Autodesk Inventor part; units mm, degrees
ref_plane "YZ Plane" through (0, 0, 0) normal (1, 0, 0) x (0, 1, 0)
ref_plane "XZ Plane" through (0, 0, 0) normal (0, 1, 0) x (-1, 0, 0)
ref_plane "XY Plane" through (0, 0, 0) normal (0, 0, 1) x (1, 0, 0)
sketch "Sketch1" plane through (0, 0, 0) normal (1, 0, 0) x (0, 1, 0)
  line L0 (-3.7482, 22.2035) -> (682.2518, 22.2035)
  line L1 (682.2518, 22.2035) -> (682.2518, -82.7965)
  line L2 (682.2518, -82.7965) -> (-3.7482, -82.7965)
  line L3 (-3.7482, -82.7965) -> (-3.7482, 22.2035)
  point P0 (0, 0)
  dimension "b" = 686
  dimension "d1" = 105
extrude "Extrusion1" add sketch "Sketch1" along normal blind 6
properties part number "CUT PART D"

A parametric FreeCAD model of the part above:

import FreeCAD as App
import Part
import Sketcher
from FreeCAD import Vector

doc = App.newDocument("Part")
params = doc.addObject("Spreadsheet::Sheet", "Params")
for row, (alias, value) in enumerate([
    ("sketch1_width", "686 mm"),
    ("sketch1_height", "105 mm"),
    ("pad1_length", "6 mm"),
], start=1):
    params.set(f"A{row}", alias)
    params.set(f"B{row}", "=" + value)
    params.setAlias(f"B{row}", alias)

body = doc.addObject("PartDesign::Body", "Body")

sketch1 = body.newObject("Sketcher::SketchObject", "Sketch")
sketch1.AttachmentSupport = (doc.getObject("YZ_Plane"), [""])
sketch1.MapMode = "FlatFace"
sketch1.addGeometry([
    Part.LineSegment(Vector(682, 22, 0), Vector(-4, 22, 0)),
    Part.LineSegment(Vector(-4, 22, 0), Vector(-4, -83, 0)),
    Part.LineSegment(Vector(-4, -83, 0), Vector(682, -83, 0)),
    Part.LineSegment(Vector(682, -83, 0), Vector(682, 22, 0)),
], False)
sketch1.addConstraint([
    Sketcher.Constraint("Coincident", 0, 2, 1, 1),
    Sketcher.Constraint("Coincident", 1, 2, 2, 1),
    Sketcher.Constraint("Coincident", 2, 2, 3, 1),
    Sketcher.Constraint("Coincident", 3, 2, 0, 1),
    Sketcher.Constraint("Horizontal", 0),
    Sketcher.Constraint("Vertical", 1),
    Sketcher.Constraint("Horizontal", 2),
    Sketcher.Constraint("Vertical", 3),
    Sketcher.Constraint("DistanceX", 0, 2, 0, 1, 686.0),
    Sketcher.Constraint("DistanceY", 1, 2, 1, 1, 105.0),
    Sketcher.Constraint("DistanceX", 0, 2, -1, 1, 3.7482),
    Sketcher.Constraint("DistanceY", -1, 1, 0, 2, 22.2035),
])
sketch1.setExpression("Constraints[8]", "Params.sketch1_width")
sketch1.setExpression("Constraints[9]", "Params.sketch1_height")
pad1 = body.newObject("PartDesign::Pad", "Pad")
pad1.Profile = sketch1
pad1.setExpression("Length", "Params.pad1_length")

doc.recompute()
